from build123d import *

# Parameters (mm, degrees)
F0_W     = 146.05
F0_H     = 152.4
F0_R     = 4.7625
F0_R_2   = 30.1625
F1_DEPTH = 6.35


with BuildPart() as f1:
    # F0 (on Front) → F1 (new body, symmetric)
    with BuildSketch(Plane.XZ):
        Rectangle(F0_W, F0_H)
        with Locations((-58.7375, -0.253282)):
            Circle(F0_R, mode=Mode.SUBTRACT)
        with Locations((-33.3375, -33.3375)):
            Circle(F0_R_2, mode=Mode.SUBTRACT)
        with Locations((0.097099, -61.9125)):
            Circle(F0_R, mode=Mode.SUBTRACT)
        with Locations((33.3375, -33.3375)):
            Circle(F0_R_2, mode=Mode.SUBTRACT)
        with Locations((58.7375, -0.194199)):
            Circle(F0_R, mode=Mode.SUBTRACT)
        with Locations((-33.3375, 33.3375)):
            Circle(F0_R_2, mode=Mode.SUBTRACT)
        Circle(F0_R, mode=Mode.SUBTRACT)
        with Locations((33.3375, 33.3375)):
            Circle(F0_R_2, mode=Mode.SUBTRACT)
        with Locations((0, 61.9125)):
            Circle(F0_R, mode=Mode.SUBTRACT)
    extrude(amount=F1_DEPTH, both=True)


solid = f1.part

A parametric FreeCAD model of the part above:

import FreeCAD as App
import Part
import Sketcher

V = App.Vector
Q = App.Units.Quantity


def add_polygon(sketch, points):
    """Adds a closed chain of lines whose ends are joined by coincident constraints."""
    first, n = sketch.GeometryCount, len(points)
    for a, b in zip(points, points[1:] + points[:1]):
        sketch.addGeometry(Part.LineSegment(App.Vector(*a, 0), App.Vector(*b, 0)), False)
    for i in range(n):
        sketch.addConstraint(Sketcher.Constraint("Coincident", first + i, 2, first + (i + 1) % n, 1))

doc = App.newDocument("Part")
body = doc.addObject("PartDesign::Body", "Body")

# Sketch on XZ plane
sketch1 = body.newObject("Sketcher::SketchObject", "Sketch")
sketch1.AttachmentSupport = (doc.getObject("XZ_Plane"), [""])
sketch1.MapMode = "FlatFace"
add_polygon(sketch1, [(-73, 76.2), (-73, -76.2), (73, -76.2), (73, 76.2)])  # lines 0-3
sketch1.addGeometry(Part.Circle(V(-33.3, -33.3, 0), V(0, 0, 1), 30.2), False)  # 4
sketch1.addGeometry(Part.Circle(V(-58.7, -0.3, 0), V(0, 0, 1), 4.8), False)  # 5
sketch1.addGeometry(Part.Circle(V(0.1, -61.9, 0), V(0, 0, 1), 4.8), False)  # 6
sketch1.addGeometry(Part.Circle(V(33.3, -33.3, 0), V(0, 0, 1), 30.2), False)  # 7
sketch1.addGeometry(Part.Circle(V(58.7, -0.2, 0), V(0, 0, 1), 4.8), False)  # 8
sketch1.addGeometry(Part.Circle(V(-33.3, 33.3, 0), V(0, 0, 1), 30.2), False)  # 9
sketch1.addGeometry(Part.Circle(V(0, 0, 0), V(0, 0, 1), 4.8), False)  # 10
sketch1.addGeometry(Part.Circle(V(33.3, 33.3, 0), V(0, 0, 1), 30.2), False)  # 11
sketch1.addGeometry(Part.Circle(V(0, 61.9, 0), V(0, 0, 1), 4.8), False)  # 12
sketch1.addConstraint([
    Sketcher.Constraint("Vertical", 0),
    Sketcher.Constraint("Horizontal", 1),
    Sketcher.Constraint("Vertical", 2),
    Sketcher.Constraint("Horizontal", 3),
    Sketcher.Constraint("Coincident", 10, 3, -1, 1),
    Sketcher.Constraint("Equal", 5, 6),
    Sketcher.Constraint("Equal", 4, 7),
    Sketcher.Constraint("Equal", 6, 8),
    Sketcher.Constraint("Equal", 7, 9),
    Sketcher.Constraint("Equal", 8, 10),
    Sketcher.Constraint("Equal", 9, 11),
    Sketcher.Constraint("Equal", 10, 12),
    Sketcher.Constraint("Symmetric", 7, 3, 9, 3, -1, 1),
    Sketcher.Constraint("Symmetric", 4, 3, 11, 3, -1, 1),
    Sketcher.Constraint("Symmetric", 0, 2, 2, 2, -1, 1),
    Sketcher.Constraint("Symmetric", 4, 3, 7, 3, -2),
    Sketcher.Constraint("PointOnObject", 12, 3, -2),
    Sketcher.Constraint("DistanceY", 0, 2, 0, 1, Q("6 in")),
    Sketcher.Constraint("Diameter", 4, Q("2.375 in")),
    Sketcher.Constraint("Diameter", 5, Q("0.375 in")),
    Sketcher.Constraint("DistanceX", 5, 3, 4, 3, Q("1 in")),
    Sketcher.Constraint("DistanceX", 7, 3, 8, 3, Q("1 in")),
    Sketcher.Constraint("DistanceX", 1, 1, 1, 2, Q("5.75 in")),
    Sketcher.Constraint("DistanceY", 6, 3, 9, 3, Q("3.75 in")),
    Sketcher.Constraint("DistanceX", 4, 3, -1, 1, Q("1.3125 in")),
    Sketcher.Constraint("DistanceY", 4, 3, -1, 1, Q("1.3125 in")),
    Sketcher.Constraint("DistanceY", -1, 1, 12, 3, Q("2.4375 in")),
    Sketcher.Constraint("DistanceX", -1, 1, 6, 3, 0.097099),
    Sketcher.Constraint("DistanceY", 8, 3, -1, 1, 0.194199),
    Sketcher.Constraint("DistanceY", 6, 3, 5, 3, 61.659218),
])
pad1 = body.newObject("PartDesign::Pad", "Pad")
pad1.Profile = sketch1
pad1.Length = Q("0.5 in")
pad1.Midplane = True

doc.recompute()
